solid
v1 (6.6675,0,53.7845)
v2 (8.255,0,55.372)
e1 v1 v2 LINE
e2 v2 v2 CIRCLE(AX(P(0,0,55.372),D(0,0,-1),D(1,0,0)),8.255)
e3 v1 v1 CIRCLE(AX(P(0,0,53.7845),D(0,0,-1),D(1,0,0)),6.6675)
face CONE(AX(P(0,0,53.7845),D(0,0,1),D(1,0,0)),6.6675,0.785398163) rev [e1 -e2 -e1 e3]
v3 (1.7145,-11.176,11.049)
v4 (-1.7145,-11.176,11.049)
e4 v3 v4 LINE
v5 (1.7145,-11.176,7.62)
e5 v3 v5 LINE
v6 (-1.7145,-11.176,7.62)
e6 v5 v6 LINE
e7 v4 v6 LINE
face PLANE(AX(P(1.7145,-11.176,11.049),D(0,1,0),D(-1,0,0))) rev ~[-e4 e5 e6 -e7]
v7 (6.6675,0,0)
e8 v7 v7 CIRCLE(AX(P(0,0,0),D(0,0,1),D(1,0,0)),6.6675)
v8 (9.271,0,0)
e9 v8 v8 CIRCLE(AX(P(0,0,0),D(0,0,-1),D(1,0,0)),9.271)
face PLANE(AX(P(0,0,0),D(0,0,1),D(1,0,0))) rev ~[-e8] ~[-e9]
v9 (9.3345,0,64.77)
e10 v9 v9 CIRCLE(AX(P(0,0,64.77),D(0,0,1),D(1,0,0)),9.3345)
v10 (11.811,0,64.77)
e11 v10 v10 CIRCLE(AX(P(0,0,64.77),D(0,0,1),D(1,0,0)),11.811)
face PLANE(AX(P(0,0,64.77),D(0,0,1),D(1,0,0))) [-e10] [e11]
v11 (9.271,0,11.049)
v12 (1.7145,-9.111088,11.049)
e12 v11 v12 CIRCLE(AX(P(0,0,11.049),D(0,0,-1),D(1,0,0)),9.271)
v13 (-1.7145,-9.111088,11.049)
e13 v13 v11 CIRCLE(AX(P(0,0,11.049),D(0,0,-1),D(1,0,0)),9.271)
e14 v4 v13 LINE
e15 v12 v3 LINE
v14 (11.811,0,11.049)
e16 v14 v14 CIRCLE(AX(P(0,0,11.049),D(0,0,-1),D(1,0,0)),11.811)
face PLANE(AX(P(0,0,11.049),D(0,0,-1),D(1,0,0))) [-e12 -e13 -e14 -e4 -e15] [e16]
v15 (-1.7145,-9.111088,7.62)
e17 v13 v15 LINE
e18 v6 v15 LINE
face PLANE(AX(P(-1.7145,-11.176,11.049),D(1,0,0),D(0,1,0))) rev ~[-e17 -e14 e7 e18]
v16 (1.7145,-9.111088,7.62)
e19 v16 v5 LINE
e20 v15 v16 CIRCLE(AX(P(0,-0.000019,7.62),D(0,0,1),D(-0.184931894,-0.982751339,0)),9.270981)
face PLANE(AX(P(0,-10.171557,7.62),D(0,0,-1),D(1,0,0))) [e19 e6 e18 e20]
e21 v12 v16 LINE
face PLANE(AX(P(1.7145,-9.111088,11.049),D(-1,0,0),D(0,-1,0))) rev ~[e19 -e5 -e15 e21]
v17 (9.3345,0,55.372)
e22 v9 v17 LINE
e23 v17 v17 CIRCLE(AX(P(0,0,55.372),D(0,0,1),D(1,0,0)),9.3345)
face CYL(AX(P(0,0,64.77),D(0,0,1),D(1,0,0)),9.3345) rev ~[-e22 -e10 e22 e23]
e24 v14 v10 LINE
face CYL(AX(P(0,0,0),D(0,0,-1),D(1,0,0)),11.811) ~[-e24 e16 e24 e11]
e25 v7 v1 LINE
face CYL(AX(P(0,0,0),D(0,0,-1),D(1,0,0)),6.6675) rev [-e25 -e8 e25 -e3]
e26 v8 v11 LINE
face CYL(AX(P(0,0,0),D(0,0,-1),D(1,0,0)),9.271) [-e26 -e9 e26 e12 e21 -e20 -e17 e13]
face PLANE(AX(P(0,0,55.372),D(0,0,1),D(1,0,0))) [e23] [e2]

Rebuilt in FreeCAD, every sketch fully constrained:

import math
import FreeCAD as App
import Part
import Sketcher

V = App.Vector
Q = App.Units.Quantity


def edges_at(feature, points):
    """Names of the edges that pass closest to the given points."""
    edges = feature.Shape.Edges
    near = lambda p: min(range(len(edges)), key=lambda i: edges[i].distToShape(Part.Vertex(*p))[0])
    return sorted({f"Edge{near(p) + 1}" for p in points})

doc = App.newDocument("Part")
body = doc.addObject("PartDesign::Body", "Body")

# Sketch on XY plane
sketch1 = body.newObject("Sketcher::SketchObject", "Sketch")
sketch1.AttachmentSupport = (doc.getObject("XY_Plane"), [""])
sketch1.MapMode = "FlatFace"
sketch1.addGeometry([
    Part.Circle(V(0, 0, 0), V(0, 0, 1), 12),
    Part.Circle(V(0, 0, 0), V(0, 0, 1), 7),
], False)
sketch1.addConstraint([
    Sketcher.Constraint("Coincident", 0, 3, -1, 1),
    Sketcher.Constraint("Coincident", 1, 3, -1, 1),
    Sketcher.Constraint("Diameter", 0, Q("0.93 in")),
    Sketcher.Constraint("Diameter", 1, Q("0.525 in")),
])
pad1 = body.newObject("PartDesign::Pad", "Pad")
pad1.Profile = sketch1
pad1.Length = Q("2.55 in")

# Sketch on XY plane
sketch2 = body.newObject("Sketcher::SketchObject", "Sketch001")
sketch2.AttachmentSupport = (doc.getObject("XY_Plane"), [""])
sketch2.MapMode = "FlatFace"
sketch2.addGeometry([
    Part.Circle(V(0, 0, 0), V(0, 0, 1), 12),
    Part.Circle(V(0, 0, 0), V(0, 0, 1), 9),
], False)
sketch2.addConstraint([
    Sketcher.Constraint("Coincident", 0, 3, -1, 1),
    Sketcher.Constraint("Coincident", 1, 3, -1, 1),
    Sketcher.Constraint("Diameter", 0, Q("0.93 in")),
    Sketcher.Constraint("Diameter", 1, Q("0.73 in")),
])
pocket1 = body.newObject("PartDesign::Pocket", "Pocket")
pocket1.Profile = sketch2
pocket1.Length = Q("0.435 in")
pocket1.Reversed = True

# Sketch on XY plane
sketch3 = body.newObject("Sketcher::SketchObject", "Sketch002")
sketch3.AttachmentSupport = (doc.getObject("XY_Plane"), [""])
sketch3.MapMode = "FlatFace"
sketch3.AttachmentOffset = App.Placement(V(0, 0, 0.435 * 25.4), App.Rotation())
sketch3.addGeometry([
    Part.LineSegment(V(1.7, -11.2, 0), V(-1.7, -11.2, 0)),
    Part.LineSegment(V(-1.7, -11.2, 0), V(-1.7, -9.1, 0)),
    Part.ArcOfCircle(Part.Circle(V(0, 0, 0), V(0, 0, 1), 9.3), math.radians(-101), math.radians(-79)),
    Part.LineSegment(V(1.7, -9.1, 0), V(1.7, -11.2, 0)),
], False)
sketch3.addConstraint([
    Sketcher.Constraint("Coincident", 0, 2, 1, 1),
    Sketcher.Constraint("Coincident", 1, 2, 2, 1),
    Sketcher.Constraint("Coincident", 2, 2, 3, 1),
    Sketcher.Constraint("Coincident", 3, 2, 0, 1),
    Sketcher.Constraint("Horizontal", 0),
    Sketcher.Constraint("Vertical", 1),
    Sketcher.Constraint("Vertical", 3),
    Sketcher.Constraint("Symmetric", 1, 2, 2, 2, -2),
    Sketcher.Constraint("DistanceX", 0, 2, 0, 1, Q("0.135 in")),
    Sketcher.Constraint("DistanceY", 0, 2, -1, 1, Q("0.44 in")),
    Sketcher.Constraint("Radius", 2, Q("9.270981 mm")),
    Sketcher.Constraint("DistanceY", 1, 1, 1, 2, Q("2.064912 mm")),
])
pad2 = body.newObject("PartDesign::Pad", "Pad001")
pad2.Profile = sketch3
pad2.Length = Q("0.135 in")
pad2.Reversed = True

# Sketch on XY plane
sketch4 = body.newObject("Sketcher::SketchObject", "Sketch003")
sketch4.AttachmentSupport = (doc.getObject("XY_Plane"), [""])
sketch4.MapMode = "FlatFace"
sketch4.AttachmentOffset = App.Placement(V(0, 0, 2.55 * 25.4), App.Rotation())
sketch4.addGeometry(Part.Circle(V(0, 0, 0), V(0, 0, 1), 9), False)
sketch4.addConstraint([
    Sketcher.Constraint("Coincident", 0, 3, -1, 1),
    Sketcher.Constraint("Diameter", 0, Q("0.735 in")),
])
pocket2 = body.newObject("PartDesign::Pocket", "Pocket001")
pocket2.Profile = sketch4
pocket2.Length = Q("0.37 in")
doc.recompute()

chamfer = body.newObject("PartDesign::Chamfer", "Chamfer")
chamfer.Base = (pocket2, edges_at(pocket2, [(-6.668, 0, 55.372)]))
chamfer.Size = Q("0.0625 in")

doc.recompute()
